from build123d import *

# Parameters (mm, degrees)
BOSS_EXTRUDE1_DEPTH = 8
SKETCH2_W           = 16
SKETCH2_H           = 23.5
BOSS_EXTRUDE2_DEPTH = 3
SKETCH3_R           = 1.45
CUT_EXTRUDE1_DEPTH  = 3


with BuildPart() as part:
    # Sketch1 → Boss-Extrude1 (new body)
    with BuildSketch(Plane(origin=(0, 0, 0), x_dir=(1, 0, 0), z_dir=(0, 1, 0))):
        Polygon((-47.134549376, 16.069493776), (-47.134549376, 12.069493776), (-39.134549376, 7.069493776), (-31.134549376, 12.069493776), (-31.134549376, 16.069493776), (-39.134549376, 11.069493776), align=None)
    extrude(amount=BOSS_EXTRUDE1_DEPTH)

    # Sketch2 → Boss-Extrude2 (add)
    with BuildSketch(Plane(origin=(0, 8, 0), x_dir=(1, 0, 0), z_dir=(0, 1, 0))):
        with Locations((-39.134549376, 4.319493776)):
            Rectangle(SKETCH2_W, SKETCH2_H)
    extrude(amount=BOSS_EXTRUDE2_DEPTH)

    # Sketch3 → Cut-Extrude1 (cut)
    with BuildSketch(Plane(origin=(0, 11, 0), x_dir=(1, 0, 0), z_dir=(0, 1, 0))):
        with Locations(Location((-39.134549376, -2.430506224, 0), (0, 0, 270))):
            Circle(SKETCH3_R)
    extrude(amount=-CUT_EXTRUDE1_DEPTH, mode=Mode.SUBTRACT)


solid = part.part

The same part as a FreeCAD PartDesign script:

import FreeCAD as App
import Part
import Sketcher
Q = App.Units.Quantity

doc = App.newDocument("Part")
body = doc.addObject("PartDesign::Body", "Body")

# Sketch on XZ plane
sketch1 = body.newObject("Sketcher::SketchObject", "Sketch")
sketch1.AttachmentSupport = (doc.getObject("XZ_Plane"), [""])
sketch1.MapMode = "FlatFace"
sketch1.addGeometry(Part.LineSegment(App.Vector(-47.1, -16.1, 0), App.Vector(-47.1, -12.1, 0)), False)
sketch1.addGeometry(Part.LineSegment(App.Vector(-47.1, -12.1, 0), App.Vector(-39.1, -7.1, 0)), False)
sketch1.addGeometry(Part.LineSegment(App.Vector(-39.1, -7.1, 0), App.Vector(-31.1, -12.1, 0)), False)
sketch1.addGeometry(Part.LineSegment(App.Vector(-31.1, -12.1, 0), App.Vector(-31.1, -16.1, 0)), False)
sketch1.addGeometry(Part.LineSegment(App.Vector(-31.1, -16.1, 0), App.Vector(-39.1, -11.1, 0)), False)
sketch1.addGeometry(Part.LineSegment(App.Vector(-39.1, -11.1, 0), App.Vector(-47.1, -16.1, 0)), False)
sketch1.addConstraint(Sketcher.Constraint("Coincident", 0, 2, 1, 1))
sketch1.addConstraint(Sketcher.Constraint("Coincident", 1, 2, 2, 1))
sketch1.addConstraint(Sketcher.Constraint("Coincident", 2, 2, 3, 1))
sketch1.addConstraint(Sketcher.Constraint("Coincident", 3, 2, 4, 1))
sketch1.addConstraint(Sketcher.Constraint("Coincident", 4, 2, 5, 1))
sketch1.addConstraint(Sketcher.Constraint("Coincident", 5, 2, 0, 1))
sketch1.addConstraint(Sketcher.Constraint("Vertical", 0))
sketch1.addConstraint(Sketcher.Constraint("Vertical", 3))
sketch1.addConstraint(Sketcher.Constraint("Parallel", 2, 4))
sketch1.addConstraint(Sketcher.Constraint("Parallel", 1, 5))
sketch1.addConstraint(Sketcher.Constraint("Horizontal", 0, 2, 2, 2))
sketch1.addConstraint(Sketcher.Constraint("Horizontal", 3, 2, 5, 2))
sketch1.addConstraint(Sketcher.Constraint("Equal", 1, 2))
sketch1.addConstraint(Sketcher.Constraint("DistanceY", 0, 1, 0, 2, Q("4 mm")))
sketch1.addConstraint(Sketcher.Constraint("DistanceX", 0, 2, 1, 2, Q("8 mm")))
sketch1.addConstraint(Sketcher.Constraint("DistanceY", 0, 2, 1, 2, Q("5 mm")))
sketch1.addConstraint(Sketcher.Constraint("DistanceX", 0, 2, -1, 1, Q("47.134549 mm")))
sketch1.addConstraint(Sketcher.Constraint("DistanceY", 0, 2, -1, 1, Q("12.069494 mm")))
pad1 = body.newObject("PartDesign::Pad", "Pad")
pad1.Profile = sketch1
pad1.Length = 8
pad1.Reversed = True

# Sketch on XZ plane
sketch2 = body.newObject("Sketcher::SketchObject", "Sketch001")
sketch2.AttachmentSupport = (doc.getObject("XZ_Plane"), [""])
sketch2.MapMode = "FlatFace"
sketch2.AttachmentOffset = App.Placement(App.Vector(0, 0, -8), App.Rotation())
sketch2.addGeometry(Part.LineSegment(App.Vector(-47, -16, 0), App.Vector(-47, 7, 0)), False)
sketch2.addGeometry(Part.LineSegment(App.Vector(-47, 7, 0), App.Vector(-31, 7, 0)), False)
sketch2.addGeometry(Part.LineSegment(App.Vector(-31, 7, 0), App.Vector(-31, -16, 0)), False)
sketch2.addGeometry(Part.LineSegment(App.Vector(-31, -16, 0), App.Vector(-47, -16, 0)), False)
sketch2.addConstraint(Sketcher.Constraint("Coincident", 0, 2, 1, 1))
sketch2.addConstraint(Sketcher.Constraint("Coincident", 1, 2, 2, 1))
sketch2.addConstraint(Sketcher.Constraint("Coincident", 2, 2, 3, 1))
sketch2.addConstraint(Sketcher.Constraint("Coincident", 3, 2, 0, 1))
sketch2.addConstraint(Sketcher.Constraint("Vertical", 0))
sketch2.addConstraint(Sketcher.Constraint("Horizontal", 1))
sketch2.addConstraint(Sketcher.Constraint("Vertical", 2))
sketch2.addConstraint(Sketcher.Constraint("Horizontal", 3))
sketch2.addConstraint(Sketcher.Constraint("DistanceX", 1, 1, 1, 2, Q("16 mm")))
sketch2.addConstraint(Sketcher.Constraint("DistanceY", 0, 1, 0, 2, Q("23.5 mm")))
sketch2.addConstraint(Sketcher.Constraint("DistanceX", 0, 2, -1, 1, Q("47.134549 mm")))
sketch2.addConstraint(Sketcher.Constraint("DistanceY", -1, 1, 0, 2, Q("7.430506 mm")))
pad2 = body.newObject("PartDesign::Pad", "Pad001")
pad2.Profile = sketch2
pad2.Length = 3
pad2.Reversed = True

# Sketch on XZ plane
sketch3 = body.newObject("Sketcher::SketchObject", "Sketch002")
sketch3.AttachmentSupport = (doc.getObject("XZ_Plane"), [""])
sketch3.MapMode = "FlatFace"
sketch3.AttachmentOffset = App.Placement(App.Vector(0, 0, -11), App.Rotation())
sketch3.addGeometry(Part.Circle(App.Vector(-39.1, 2.4, 0), App.Vector(0, 0, 1), 1.4), False)
sketch3.addConstraint(Sketcher.Constraint("Diameter", 0, Q("2.9 mm")))
sketch3.addConstraint(Sketcher.Constraint("DistanceX", 0, 3, -1, 1, Q("39.134549 mm")))
sketch3.addConstraint(Sketcher.Constraint("DistanceY", -1, 1, 0, 3, Q("2.430506 mm")))
pocket1 = body.newObject("PartDesign::Pocket", "Pocket")
pocket1.Profile = sketch3
pocket1.Length = 3
pocket1.Reversed = True

doc.recompute()
